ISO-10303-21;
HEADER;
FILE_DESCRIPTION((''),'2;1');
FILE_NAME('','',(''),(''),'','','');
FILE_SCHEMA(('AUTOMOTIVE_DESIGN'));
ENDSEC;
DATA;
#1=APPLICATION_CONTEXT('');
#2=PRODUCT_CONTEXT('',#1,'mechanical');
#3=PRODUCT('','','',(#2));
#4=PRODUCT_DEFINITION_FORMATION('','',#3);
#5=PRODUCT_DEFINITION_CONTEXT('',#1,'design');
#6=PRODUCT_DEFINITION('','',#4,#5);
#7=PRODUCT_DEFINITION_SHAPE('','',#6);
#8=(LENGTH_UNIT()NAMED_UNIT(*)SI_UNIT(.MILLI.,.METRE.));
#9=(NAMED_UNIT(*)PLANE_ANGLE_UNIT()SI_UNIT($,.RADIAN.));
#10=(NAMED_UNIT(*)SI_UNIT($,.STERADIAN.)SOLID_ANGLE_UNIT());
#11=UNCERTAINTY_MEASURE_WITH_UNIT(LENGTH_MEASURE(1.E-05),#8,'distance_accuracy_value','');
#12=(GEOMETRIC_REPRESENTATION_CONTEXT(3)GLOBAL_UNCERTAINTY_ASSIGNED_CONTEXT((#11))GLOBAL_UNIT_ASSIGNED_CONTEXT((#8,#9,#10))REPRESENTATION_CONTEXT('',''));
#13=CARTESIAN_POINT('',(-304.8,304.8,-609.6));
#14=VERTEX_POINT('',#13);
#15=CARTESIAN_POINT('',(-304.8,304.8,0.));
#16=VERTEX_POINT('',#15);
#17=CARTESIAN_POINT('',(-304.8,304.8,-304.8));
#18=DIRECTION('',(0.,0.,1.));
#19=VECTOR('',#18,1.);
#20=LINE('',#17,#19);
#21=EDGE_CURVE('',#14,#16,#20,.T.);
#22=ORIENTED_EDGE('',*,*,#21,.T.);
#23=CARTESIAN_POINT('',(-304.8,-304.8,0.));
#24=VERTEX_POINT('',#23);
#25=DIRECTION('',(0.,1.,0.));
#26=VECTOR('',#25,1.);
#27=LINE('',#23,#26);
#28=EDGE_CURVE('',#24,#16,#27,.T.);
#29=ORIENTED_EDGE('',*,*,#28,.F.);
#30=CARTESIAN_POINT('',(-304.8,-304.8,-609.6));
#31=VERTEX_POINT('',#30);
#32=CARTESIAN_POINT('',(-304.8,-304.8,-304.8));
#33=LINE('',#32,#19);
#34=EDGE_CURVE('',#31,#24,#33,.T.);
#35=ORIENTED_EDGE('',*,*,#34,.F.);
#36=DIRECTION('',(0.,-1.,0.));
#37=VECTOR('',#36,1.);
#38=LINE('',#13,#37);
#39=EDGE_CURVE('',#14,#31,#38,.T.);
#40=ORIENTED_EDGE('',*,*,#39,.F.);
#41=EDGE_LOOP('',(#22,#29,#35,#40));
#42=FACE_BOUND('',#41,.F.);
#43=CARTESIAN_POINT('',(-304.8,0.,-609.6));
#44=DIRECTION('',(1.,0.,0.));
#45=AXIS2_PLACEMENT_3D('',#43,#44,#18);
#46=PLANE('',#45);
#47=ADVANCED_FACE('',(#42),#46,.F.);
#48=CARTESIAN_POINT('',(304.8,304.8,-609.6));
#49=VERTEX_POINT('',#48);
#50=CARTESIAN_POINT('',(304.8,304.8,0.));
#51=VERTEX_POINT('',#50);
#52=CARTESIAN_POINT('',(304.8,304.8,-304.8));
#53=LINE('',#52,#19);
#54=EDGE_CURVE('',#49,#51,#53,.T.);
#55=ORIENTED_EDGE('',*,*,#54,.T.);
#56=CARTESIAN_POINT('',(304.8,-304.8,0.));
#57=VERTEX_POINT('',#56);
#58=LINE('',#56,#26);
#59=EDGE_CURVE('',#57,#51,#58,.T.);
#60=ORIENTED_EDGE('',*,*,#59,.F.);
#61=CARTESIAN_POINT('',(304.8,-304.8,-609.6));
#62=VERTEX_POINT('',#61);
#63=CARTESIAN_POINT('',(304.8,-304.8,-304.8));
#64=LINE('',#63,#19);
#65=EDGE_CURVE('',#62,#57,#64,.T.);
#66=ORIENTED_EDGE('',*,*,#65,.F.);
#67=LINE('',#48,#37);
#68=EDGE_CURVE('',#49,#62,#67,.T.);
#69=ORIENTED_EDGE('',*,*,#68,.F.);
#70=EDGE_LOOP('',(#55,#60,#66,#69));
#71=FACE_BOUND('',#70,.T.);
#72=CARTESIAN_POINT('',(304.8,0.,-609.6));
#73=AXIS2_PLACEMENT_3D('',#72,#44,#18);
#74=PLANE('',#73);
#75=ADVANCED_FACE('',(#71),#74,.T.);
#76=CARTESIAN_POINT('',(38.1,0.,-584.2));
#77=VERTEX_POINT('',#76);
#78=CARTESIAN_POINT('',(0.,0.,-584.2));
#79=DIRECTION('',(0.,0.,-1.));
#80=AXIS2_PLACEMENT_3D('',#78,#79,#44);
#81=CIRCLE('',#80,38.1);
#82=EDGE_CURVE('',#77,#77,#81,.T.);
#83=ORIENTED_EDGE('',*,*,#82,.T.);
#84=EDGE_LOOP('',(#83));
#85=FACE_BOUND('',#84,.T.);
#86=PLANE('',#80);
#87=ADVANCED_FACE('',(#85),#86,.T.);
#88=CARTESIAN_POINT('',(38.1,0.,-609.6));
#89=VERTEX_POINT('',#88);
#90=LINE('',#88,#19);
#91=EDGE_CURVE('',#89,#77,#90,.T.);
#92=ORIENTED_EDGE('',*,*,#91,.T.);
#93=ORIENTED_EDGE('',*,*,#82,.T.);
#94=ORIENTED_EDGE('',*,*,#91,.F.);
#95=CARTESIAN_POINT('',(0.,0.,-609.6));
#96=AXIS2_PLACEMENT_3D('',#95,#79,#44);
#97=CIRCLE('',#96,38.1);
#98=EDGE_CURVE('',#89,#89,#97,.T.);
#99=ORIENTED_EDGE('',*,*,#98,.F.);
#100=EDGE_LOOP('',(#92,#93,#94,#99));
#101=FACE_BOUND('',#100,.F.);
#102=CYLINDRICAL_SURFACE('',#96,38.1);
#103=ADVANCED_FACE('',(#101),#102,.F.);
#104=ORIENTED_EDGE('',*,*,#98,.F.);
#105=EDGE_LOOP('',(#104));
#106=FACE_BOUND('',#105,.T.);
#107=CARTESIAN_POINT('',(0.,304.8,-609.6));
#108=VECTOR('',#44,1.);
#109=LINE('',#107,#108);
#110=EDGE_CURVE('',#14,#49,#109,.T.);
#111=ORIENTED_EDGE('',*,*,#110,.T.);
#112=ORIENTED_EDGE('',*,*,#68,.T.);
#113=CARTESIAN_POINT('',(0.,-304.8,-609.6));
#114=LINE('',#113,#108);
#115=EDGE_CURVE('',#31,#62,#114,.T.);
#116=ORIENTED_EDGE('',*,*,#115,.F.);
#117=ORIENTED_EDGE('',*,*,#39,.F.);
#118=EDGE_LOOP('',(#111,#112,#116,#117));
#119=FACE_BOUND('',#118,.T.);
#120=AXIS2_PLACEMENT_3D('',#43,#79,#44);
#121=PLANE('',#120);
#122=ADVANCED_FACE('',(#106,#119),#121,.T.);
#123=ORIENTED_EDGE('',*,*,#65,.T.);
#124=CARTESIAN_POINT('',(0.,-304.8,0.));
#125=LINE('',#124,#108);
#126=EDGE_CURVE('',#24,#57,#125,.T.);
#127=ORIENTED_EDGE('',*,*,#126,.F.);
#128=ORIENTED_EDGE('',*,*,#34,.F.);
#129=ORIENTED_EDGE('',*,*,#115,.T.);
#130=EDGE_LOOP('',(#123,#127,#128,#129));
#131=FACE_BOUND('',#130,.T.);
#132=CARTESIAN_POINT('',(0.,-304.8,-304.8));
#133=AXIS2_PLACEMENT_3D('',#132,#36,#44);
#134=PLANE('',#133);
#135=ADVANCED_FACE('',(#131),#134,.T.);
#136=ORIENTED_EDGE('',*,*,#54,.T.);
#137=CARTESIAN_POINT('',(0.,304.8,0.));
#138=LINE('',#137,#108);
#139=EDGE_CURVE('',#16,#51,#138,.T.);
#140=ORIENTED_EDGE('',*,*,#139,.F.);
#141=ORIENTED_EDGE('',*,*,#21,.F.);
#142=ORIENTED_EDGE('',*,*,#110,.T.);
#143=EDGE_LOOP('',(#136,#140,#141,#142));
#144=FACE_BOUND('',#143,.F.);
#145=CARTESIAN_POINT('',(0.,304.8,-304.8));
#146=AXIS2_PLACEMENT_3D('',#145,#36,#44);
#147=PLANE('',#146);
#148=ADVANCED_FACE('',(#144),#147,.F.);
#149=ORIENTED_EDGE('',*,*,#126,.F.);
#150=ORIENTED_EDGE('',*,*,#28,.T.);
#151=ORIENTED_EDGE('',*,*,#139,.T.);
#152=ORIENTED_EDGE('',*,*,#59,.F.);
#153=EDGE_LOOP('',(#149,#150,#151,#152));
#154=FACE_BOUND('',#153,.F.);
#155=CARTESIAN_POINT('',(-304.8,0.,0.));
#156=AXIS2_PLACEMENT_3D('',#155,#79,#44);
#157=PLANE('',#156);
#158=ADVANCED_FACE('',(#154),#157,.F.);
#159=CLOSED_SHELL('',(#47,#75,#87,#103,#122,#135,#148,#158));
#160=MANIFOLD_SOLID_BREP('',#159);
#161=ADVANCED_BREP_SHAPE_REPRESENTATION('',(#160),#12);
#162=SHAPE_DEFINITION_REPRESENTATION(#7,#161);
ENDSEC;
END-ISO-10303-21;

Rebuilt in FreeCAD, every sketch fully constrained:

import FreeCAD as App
import Part
import Sketcher

V = App.Vector
Q = App.Units.Quantity

doc = App.newDocument("Part")
body = doc.addObject("PartDesign::Body", "Body")

sketch1 = body.newObject("Sketcher::SketchObject", "Sketch")
sketch1.AttachmentSupport = (doc.getObject("XZ_Plane"), [""])
sketch1.MapMode = "FlatFace"
sketch1.addGeometry([
    Part.LineSegment(V(-305, 0, 0), V(-305, -610, 0)),
    Part.LineSegment(V(-305, -610, 0), V(305, -610, 0)),
    Part.LineSegment(V(305, -610, 0), V(305, 0, 0)),
    Part.LineSegment(V(305, 0, 0), V(-305, 0, 0)),
], False)
sketch1.addConstraint([
    Sketcher.Constraint("Coincident", 0, 2, 1, 1),
    Sketcher.Constraint("Coincident", 1, 2, 2, 1),
    Sketcher.Constraint("Coincident", 2, 2, 3, 1),
    Sketcher.Constraint("Coincident", 3, 2, 0, 1),
    Sketcher.Constraint("Vertical", 0),
    Sketcher.Constraint("Horizontal", 1),
    Sketcher.Constraint("Vertical", 2),
    Sketcher.Constraint("Horizontal", 3),
    Sketcher.Constraint("Symmetric", 2, 2, 3, 2, -1, 1),
    Sketcher.Constraint("Equal", 3, 0),
    Sketcher.Constraint("DistanceX", 1, 1, 1, 2, Q("24 in")),
])
pad1 = body.newObject("PartDesign::Pad", "Pad")
pad1.Profile = sketch1
pad1.Length = Q("24 in")
pad1.Midplane = True

sketch2 = body.newObject("Sketcher::SketchObject", "Sketch001")
sketch2.AttachmentSupport = (doc.getObject("XY_Plane"), [""])
sketch2.MapMode = "FlatFace"
sketch2.AttachmentOffset = App.Placement(V(0, 0, -24 * 25.4), App.Rotation())
sketch2.addGeometry(Part.Circle(V(0, 0, 0), V(0, 0, 1), 38), False)
sketch2.addConstraint([
    Sketcher.Constraint("Coincident", 0, 3, -1, 1),
    Sketcher.Constraint("Diameter", 0, Q("3 in")),
])
pocket1 = body.newObject("PartDesign::Pocket", "Pocket")
pocket1.Profile = sketch2
pocket1.Length = Q("1 in")
pocket1.Reversed = True

doc.recompute()
